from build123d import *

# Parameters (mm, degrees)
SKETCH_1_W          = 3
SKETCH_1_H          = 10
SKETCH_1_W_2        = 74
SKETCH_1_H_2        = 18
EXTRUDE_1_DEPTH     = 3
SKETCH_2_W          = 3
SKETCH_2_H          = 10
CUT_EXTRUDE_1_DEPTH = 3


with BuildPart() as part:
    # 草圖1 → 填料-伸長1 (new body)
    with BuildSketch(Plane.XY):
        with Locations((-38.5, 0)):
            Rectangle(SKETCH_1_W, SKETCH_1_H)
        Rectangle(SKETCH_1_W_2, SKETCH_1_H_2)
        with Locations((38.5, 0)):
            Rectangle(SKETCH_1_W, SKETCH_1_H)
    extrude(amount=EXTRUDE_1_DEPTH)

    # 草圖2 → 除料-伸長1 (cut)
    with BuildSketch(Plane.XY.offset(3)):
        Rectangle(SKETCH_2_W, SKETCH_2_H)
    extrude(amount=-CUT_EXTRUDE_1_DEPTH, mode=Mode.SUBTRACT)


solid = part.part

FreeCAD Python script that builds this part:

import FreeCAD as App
import Part
import Sketcher
from FreeCAD import Vector
Q = App.Units.Quantity


def add_polygon(sketch, points):
    """Adds a closed chain of lines whose ends are joined by coincident constraints."""
    first, n = sketch.GeometryCount, len(points)
    for a, b in zip(points, points[1:] + points[:1]):
        sketch.addGeometry(Part.LineSegment(App.Vector(*a, 0), App.Vector(*b, 0)), False)
    for i in range(n):
        sketch.addConstraint(Sketcher.Constraint("Coincident", first + i, 2, first + (i + 1) % n, 1))

doc = App.newDocument("Part")
body = doc.addObject("PartDesign::Body", "Body")

# Sketch on XY plane
sketch1 = body.newObject("Sketcher::SketchObject", "Sketch")
sketch1.AttachmentSupport = (doc.getObject("XY_Plane"), [""])
sketch1.MapMode = "FlatFace"
add_polygon(sketch1, [(-40, 5), (-40, -5), (-37, -5), (-37, -9), (37, -9), (37, -5), (40, -5), (40, 5), (37, 5), (37, 9), (-37, 9), (-37, 5)])  # lines 0-11
sketch1.addConstraint(Sketcher.Constraint("Vertical", 0))
sketch1.addConstraint(Sketcher.Constraint("Horizontal", 1))
sketch1.addConstraint(Sketcher.Constraint("Vertical", 2))
sketch1.addConstraint(Sketcher.Constraint("Horizontal", 3))
sketch1.addConstraint(Sketcher.Constraint("Vertical", 4))
sketch1.addConstraint(Sketcher.Constraint("Horizontal", 5))
sketch1.addConstraint(Sketcher.Constraint("Vertical", 6))
sketch1.addConstraint(Sketcher.Constraint("Horizontal", 7))
sketch1.addConstraint(Sketcher.Constraint("Vertical", 8))
sketch1.addConstraint(Sketcher.Constraint("Horizontal", 9))
sketch1.addConstraint(Sketcher.Constraint("Vertical", 10))
sketch1.addConstraint(Sketcher.Constraint("Horizontal", 11))
sketch1.addConstraint(Sketcher.Constraint("Symmetric", 0, 2, 6, 2, -1, 1))
sketch1.addConstraint(Sketcher.Constraint("Symmetric", 2, 2, 8, 2, -1, 1))
sketch1.addConstraint(Sketcher.Constraint("Symmetric", 4, 2, 10, 2, -1, 1))
sketch1.addConstraint(Sketcher.Constraint("Symmetric", 1, 2, 4, 2, -2))
sketch1.addConstraint(Sketcher.Constraint("DistanceX", 1, 1, 1, 2, Q("3 mm")))
sketch1.addConstraint(Sketcher.Constraint("DistanceX", 3, 1, 3, 2, Q("74 mm")))
sketch1.addConstraint(Sketcher.Constraint("DistanceY", 0, 2, 0, 1, Q("10 mm")))
sketch1.addConstraint(Sketcher.Constraint("DistanceY", 2, 2, 2, 1, Q("4 mm")))
pad1 = body.newObject("PartDesign::Pad", "Pad")
pad1.Profile = sketch1
pad1.Length = 3

# Sketch on XY plane
sketch2 = body.newObject("Sketcher::SketchObject", "Sketch001")
sketch2.AttachmentSupport = (doc.getObject("XY_Plane"), [""])
sketch2.MapMode = "FlatFace"
sketch2.AttachmentOffset = App.Placement(Vector(0, 0, 3), App.Rotation())
add_polygon(sketch2, [(-1.5, 5), (-1.5, -5), (1.5, -5), (1.5, 5)])  # lines 0-3
sketch2.addConstraint(Sketcher.Constraint("Vertical", 0))
sketch2.addConstraint(Sketcher.Constraint("Horizontal", 1))
sketch2.addConstraint(Sketcher.Constraint("Vertical", 2))
sketch2.addConstraint(Sketcher.Constraint("Horizontal", 3))
sketch2.addConstraint(Sketcher.Constraint("Symmetric", 0, 2, 2, 2, -1, 1))
sketch2.addConstraint(Sketcher.Constraint("DistanceX", 1, 1, 1, 2, Q("3 mm")))
sketch2.addConstraint(Sketcher.Constraint("DistanceY", 0, 2, 0, 1, Q("10 mm")))
pocket1 = body.newObject("PartDesign::Pocket", "Pocket")
pocket1.Profile = sketch2
pocket1.Length = 3

doc.recompute()
